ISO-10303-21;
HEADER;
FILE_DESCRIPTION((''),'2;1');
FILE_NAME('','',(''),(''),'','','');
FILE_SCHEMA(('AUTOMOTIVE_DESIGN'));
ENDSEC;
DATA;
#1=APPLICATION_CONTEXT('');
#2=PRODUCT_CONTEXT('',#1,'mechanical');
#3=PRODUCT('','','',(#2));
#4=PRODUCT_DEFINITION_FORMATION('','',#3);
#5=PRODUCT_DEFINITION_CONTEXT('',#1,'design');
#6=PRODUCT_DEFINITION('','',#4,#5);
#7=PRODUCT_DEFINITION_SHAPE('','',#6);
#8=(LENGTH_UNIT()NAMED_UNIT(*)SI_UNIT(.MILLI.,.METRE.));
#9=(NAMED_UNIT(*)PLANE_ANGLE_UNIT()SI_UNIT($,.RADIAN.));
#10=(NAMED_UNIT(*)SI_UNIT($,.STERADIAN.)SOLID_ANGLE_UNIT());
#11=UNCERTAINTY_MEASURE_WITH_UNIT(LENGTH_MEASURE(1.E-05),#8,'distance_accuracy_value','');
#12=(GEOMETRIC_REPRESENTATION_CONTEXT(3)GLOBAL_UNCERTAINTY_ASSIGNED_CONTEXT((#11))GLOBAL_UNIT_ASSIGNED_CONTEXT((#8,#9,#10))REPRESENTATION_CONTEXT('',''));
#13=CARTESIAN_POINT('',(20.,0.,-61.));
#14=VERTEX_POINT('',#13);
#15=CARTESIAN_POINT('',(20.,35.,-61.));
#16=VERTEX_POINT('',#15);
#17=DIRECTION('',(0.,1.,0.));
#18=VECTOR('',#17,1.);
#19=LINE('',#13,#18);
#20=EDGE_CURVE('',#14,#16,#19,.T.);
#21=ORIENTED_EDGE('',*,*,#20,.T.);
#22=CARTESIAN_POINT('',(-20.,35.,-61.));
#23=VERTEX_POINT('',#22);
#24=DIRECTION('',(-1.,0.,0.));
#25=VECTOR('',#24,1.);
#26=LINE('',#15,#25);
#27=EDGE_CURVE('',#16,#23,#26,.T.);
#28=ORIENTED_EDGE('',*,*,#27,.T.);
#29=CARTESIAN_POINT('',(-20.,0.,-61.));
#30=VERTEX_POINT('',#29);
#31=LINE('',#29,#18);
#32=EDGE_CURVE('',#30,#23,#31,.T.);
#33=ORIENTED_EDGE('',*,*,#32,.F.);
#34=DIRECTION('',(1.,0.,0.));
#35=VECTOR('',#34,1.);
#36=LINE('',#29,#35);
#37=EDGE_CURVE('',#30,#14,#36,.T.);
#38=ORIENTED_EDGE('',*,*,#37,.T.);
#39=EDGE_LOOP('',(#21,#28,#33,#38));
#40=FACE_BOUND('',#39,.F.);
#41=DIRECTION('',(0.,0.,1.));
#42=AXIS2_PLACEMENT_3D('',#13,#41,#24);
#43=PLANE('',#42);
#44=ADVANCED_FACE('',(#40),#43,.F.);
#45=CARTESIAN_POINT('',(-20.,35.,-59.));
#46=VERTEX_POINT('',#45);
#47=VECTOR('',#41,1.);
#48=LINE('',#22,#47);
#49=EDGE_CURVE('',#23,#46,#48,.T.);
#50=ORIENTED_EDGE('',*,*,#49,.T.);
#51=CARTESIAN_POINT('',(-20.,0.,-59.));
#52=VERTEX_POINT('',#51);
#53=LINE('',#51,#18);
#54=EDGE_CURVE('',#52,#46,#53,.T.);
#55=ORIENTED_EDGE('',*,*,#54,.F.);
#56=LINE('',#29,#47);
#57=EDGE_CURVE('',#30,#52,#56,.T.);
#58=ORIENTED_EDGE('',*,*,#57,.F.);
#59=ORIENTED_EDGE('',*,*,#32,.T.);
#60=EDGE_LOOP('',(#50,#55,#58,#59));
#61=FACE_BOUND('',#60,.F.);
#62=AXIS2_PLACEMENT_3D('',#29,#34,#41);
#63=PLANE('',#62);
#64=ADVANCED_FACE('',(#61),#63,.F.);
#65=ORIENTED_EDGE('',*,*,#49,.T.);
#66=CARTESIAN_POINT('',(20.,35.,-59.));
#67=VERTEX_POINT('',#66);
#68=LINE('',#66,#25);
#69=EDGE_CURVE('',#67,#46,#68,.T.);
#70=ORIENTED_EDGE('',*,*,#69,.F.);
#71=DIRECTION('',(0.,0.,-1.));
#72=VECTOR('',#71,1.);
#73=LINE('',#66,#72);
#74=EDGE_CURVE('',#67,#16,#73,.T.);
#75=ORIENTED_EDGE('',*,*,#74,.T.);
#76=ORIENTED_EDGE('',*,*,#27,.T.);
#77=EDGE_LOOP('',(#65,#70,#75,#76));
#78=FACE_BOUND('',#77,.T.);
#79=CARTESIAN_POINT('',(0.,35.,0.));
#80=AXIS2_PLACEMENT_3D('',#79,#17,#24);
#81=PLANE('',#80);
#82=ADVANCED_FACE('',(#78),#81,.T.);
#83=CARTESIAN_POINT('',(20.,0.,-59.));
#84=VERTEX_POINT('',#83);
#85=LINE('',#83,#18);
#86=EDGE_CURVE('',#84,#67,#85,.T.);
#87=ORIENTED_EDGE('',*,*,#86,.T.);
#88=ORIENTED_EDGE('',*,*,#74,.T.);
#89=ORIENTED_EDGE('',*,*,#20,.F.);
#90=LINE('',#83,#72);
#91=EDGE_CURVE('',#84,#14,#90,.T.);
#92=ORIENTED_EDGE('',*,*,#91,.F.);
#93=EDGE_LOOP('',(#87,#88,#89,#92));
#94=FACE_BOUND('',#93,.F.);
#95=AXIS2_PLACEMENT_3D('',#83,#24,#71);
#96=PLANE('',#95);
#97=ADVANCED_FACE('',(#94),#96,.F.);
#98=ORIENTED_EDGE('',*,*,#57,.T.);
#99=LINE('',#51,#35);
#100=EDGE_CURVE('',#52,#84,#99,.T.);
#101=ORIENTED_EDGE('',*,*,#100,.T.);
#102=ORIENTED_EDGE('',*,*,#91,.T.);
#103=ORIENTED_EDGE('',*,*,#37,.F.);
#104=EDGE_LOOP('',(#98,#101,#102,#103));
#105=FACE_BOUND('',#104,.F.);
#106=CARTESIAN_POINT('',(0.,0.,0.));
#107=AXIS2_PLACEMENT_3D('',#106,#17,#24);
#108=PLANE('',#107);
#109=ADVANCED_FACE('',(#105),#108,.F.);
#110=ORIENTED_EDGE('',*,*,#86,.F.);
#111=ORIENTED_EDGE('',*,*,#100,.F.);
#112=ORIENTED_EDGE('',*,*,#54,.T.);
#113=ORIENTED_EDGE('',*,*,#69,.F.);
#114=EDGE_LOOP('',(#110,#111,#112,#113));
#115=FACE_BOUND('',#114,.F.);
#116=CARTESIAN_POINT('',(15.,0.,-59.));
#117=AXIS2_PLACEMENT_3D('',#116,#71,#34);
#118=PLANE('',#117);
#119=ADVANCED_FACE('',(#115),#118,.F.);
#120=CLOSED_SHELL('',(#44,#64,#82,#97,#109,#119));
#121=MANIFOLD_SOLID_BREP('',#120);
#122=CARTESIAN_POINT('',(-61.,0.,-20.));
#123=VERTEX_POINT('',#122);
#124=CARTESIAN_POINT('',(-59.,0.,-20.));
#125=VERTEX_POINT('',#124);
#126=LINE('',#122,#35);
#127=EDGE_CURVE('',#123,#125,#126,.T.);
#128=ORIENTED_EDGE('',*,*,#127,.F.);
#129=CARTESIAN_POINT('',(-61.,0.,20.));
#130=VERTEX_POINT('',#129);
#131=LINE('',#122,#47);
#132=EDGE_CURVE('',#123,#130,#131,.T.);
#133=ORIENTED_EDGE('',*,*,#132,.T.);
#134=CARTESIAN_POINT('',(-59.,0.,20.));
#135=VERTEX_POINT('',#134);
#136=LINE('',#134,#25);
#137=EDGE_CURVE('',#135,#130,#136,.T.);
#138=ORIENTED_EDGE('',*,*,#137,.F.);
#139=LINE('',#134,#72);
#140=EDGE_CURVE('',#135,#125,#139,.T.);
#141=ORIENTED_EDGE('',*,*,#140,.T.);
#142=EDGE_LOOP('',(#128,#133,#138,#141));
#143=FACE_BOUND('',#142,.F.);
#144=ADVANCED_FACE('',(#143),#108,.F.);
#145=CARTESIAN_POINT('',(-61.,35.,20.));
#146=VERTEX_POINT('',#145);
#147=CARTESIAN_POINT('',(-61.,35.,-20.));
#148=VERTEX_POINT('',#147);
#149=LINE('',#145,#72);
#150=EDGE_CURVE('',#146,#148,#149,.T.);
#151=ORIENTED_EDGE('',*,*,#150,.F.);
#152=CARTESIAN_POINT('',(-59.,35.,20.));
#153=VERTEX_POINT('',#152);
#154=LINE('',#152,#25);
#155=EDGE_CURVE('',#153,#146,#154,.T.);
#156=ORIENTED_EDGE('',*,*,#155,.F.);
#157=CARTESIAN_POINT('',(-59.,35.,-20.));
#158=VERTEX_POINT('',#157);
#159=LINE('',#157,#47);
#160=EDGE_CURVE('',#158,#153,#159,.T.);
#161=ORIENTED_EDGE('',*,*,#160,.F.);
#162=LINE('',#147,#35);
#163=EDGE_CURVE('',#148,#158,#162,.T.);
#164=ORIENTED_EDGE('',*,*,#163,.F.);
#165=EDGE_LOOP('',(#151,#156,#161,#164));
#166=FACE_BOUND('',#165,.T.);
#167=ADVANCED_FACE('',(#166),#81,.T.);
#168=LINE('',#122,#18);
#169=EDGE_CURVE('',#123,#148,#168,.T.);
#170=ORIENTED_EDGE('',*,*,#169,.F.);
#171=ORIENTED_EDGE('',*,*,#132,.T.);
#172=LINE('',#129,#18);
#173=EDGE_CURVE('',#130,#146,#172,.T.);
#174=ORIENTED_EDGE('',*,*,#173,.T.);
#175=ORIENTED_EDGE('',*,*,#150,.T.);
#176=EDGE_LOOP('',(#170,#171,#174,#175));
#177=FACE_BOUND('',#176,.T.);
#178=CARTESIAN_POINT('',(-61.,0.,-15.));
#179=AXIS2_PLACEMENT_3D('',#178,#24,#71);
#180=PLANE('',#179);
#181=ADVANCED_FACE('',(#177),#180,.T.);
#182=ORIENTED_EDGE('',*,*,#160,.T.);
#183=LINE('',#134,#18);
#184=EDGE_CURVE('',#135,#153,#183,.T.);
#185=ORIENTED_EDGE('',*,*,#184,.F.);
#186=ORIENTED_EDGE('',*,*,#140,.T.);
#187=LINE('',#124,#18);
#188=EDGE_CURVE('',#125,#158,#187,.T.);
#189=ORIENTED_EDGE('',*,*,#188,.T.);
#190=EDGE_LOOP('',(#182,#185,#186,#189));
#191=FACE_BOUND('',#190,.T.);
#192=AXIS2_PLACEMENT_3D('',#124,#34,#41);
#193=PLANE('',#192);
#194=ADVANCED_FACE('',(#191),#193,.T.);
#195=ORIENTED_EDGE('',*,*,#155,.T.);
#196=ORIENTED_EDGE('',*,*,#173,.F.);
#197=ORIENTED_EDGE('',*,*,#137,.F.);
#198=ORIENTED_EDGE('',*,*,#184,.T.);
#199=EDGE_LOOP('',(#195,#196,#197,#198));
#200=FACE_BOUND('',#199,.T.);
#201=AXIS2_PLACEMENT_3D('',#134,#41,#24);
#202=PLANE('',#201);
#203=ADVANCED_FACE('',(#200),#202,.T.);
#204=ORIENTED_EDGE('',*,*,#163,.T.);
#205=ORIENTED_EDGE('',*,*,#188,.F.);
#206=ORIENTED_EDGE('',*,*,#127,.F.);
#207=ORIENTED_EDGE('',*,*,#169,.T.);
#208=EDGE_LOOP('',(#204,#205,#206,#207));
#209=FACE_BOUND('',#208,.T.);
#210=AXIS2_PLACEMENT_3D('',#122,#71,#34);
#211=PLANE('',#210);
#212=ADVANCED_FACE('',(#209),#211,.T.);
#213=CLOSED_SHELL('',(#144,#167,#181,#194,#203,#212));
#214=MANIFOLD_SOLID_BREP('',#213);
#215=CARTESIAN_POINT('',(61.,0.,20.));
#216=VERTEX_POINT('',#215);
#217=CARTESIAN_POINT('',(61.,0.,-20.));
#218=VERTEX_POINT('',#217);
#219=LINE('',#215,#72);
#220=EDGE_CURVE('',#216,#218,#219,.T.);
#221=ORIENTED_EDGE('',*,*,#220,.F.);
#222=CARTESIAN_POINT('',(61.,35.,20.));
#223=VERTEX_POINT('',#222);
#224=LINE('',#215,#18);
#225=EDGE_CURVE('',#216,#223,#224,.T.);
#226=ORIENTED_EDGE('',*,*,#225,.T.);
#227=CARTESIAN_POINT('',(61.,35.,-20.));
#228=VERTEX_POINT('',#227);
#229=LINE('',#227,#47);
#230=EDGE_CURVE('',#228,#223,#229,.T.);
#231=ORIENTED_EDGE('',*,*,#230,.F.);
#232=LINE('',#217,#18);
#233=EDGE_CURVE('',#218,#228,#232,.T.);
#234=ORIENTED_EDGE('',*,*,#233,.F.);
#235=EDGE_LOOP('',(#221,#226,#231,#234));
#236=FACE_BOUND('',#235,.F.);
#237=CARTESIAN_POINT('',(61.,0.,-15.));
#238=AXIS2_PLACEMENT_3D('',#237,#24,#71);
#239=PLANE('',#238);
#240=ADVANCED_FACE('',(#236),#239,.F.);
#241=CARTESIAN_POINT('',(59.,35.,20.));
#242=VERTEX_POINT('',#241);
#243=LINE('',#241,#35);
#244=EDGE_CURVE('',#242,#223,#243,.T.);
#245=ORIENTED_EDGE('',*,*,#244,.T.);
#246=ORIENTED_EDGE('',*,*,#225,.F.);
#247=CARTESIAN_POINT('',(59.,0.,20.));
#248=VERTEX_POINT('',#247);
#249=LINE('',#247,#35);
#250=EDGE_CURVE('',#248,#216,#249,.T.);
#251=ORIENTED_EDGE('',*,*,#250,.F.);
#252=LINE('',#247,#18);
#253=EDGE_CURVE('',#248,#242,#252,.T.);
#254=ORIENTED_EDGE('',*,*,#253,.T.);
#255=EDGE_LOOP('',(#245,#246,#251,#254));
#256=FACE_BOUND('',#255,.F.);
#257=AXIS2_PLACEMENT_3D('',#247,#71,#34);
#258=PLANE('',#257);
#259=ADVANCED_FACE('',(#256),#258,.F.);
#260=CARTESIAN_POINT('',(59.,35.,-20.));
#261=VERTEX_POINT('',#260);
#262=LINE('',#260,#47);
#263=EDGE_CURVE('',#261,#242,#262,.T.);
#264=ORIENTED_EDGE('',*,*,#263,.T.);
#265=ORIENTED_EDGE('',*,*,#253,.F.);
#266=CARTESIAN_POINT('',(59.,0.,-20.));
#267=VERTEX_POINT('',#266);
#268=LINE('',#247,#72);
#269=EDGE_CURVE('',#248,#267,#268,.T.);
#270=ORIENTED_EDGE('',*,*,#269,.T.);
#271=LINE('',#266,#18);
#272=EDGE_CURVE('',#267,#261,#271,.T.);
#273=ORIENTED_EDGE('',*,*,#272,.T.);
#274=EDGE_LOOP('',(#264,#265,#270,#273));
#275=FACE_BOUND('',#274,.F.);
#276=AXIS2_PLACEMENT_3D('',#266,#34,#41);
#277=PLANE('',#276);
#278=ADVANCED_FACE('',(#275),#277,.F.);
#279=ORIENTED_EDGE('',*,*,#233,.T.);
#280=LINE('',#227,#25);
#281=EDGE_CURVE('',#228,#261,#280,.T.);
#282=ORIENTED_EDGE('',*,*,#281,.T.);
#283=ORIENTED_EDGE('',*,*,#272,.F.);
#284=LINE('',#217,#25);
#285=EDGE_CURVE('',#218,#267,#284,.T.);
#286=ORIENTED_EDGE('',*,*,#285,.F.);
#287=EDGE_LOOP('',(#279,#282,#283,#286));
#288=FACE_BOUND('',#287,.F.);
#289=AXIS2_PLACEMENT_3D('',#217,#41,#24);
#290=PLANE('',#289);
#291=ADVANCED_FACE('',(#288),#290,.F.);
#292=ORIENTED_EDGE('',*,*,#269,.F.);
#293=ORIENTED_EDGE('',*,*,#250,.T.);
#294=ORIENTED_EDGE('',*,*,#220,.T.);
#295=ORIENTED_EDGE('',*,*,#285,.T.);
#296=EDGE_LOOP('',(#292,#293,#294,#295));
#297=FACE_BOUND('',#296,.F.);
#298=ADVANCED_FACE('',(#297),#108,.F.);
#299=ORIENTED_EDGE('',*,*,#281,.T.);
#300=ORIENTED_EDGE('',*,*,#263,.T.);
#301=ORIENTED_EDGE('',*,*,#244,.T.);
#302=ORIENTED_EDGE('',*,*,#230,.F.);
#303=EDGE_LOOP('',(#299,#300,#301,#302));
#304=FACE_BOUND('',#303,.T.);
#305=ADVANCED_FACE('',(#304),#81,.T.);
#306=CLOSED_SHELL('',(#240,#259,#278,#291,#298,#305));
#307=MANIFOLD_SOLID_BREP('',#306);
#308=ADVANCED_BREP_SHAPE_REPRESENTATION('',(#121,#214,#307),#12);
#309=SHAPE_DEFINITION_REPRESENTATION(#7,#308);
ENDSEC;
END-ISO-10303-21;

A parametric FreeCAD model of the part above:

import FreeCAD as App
import Part
import Sketcher
Q = App.Units.Quantity


def add_polygon(sketch, points):
    """Adds a closed chain of lines whose ends are joined by coincident constraints."""
    first, n = sketch.GeometryCount, len(points)
    for a, b in zip(points, points[1:] + points[:1]):
        sketch.addGeometry(Part.LineSegment(App.Vector(*a, 0), App.Vector(*b, 0)), False)
    for i in range(n):
        sketch.addConstraint(Sketcher.Constraint("Coincident", first + i, 2, first + (i + 1) % n, 1))

doc = App.newDocument("Part")
body = doc.addObject("PartDesign::Body", "Body")
body.AllowCompound = True

# Sketch on XZ plane
sketch1 = body.newObject("Sketcher::SketchObject", "Sketch")
sketch1.AttachmentSupport = (doc.getObject("XZ_Plane"), [""])
sketch1.MapMode = "FlatFace"
add_polygon(sketch1, [(-59, -20), (-61, -20), (-61, 20), (-59, 20)])  # lines 0-3
add_polygon(sketch1, [(61, -20), (59, -20), (59, 20), (61, 20)])  # lines 4-7
add_polygon(sketch1, [(20, -59), (20, -61), (-20, -61), (-20, -59)])  # lines 8-11
sketch1.addConstraint([
    Sketcher.Constraint("Horizontal", 0),
    Sketcher.Constraint("Vertical", 1),
    Sketcher.Constraint("Horizontal", 2),
    Sketcher.Constraint("Vertical", 3),
    Sketcher.Constraint("Horizontal", 4),
    Sketcher.Constraint("Vertical", 5),
    Sketcher.Constraint("Horizontal", 6),
    Sketcher.Constraint("Vertical", 7),
    Sketcher.Constraint("Vertical", 8),
    Sketcher.Constraint("Horizontal", 9),
    Sketcher.Constraint("Vertical", 10),
    Sketcher.Constraint("Horizontal", 11),
    Sketcher.Constraint("Symmetric", 2, 2, 4, 2, -1, 1),
    Sketcher.Constraint("Symmetric", 0, 2, 6, 2, -1, 1),
    Sketcher.Constraint("Horizontal", 3, 2, 4, 2),
    Sketcher.Constraint("Equal", 11, 1),
    Sketcher.Constraint("Equal", 6, 8),
    Sketcher.Constraint("DistanceX", 0, 2, 0, 1, Q("2 mm")),
    Sketcher.Constraint("DistanceX", 9, 2, 9, 1, Q("40 mm")),
    Sketcher.Constraint("DistanceX", 0, 2, -1, 1, Q("61 mm")),
    Sketcher.Constraint("DistanceX", -1, 1, 8, 2, Q("20 mm")),
    Sketcher.Constraint("DistanceY", 8, 2, -1, 1, Q("61 mm")),
])
pad1 = body.newObject("PartDesign::Pad", "Pad")
pad1.Profile = sketch1
pad1.Length = 35
pad1.Reversed = True

doc.recompute()
